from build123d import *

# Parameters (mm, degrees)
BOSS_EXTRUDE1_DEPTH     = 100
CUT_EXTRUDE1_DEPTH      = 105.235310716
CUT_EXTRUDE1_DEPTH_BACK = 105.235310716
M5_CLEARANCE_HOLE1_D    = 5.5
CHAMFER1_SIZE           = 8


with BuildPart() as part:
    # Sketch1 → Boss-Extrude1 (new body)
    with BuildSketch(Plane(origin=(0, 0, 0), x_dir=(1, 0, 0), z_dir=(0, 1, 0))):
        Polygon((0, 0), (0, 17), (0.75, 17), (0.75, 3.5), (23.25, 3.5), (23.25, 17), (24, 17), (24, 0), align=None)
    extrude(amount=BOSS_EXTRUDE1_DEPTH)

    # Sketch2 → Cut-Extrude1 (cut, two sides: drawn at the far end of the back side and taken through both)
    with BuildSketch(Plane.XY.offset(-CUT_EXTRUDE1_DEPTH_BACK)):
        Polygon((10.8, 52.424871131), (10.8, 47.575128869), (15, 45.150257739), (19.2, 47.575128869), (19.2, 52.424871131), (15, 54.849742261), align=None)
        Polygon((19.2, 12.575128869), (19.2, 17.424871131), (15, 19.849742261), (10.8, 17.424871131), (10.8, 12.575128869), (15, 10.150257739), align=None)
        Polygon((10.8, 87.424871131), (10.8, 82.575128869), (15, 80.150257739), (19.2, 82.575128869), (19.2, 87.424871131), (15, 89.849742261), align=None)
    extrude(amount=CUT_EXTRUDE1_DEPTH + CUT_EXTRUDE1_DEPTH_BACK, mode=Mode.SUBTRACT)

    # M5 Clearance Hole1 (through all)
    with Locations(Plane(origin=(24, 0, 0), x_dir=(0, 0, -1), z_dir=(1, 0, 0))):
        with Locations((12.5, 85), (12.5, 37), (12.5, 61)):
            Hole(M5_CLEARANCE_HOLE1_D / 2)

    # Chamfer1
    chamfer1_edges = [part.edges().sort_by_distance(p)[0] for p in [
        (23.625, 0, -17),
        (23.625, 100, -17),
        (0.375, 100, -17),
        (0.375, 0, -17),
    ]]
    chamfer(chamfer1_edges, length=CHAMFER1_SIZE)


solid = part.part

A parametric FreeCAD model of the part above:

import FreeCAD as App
import Part
import Sketcher

V = App.Vector
Q = App.Units.Quantity


def edges_at(feature, points):
    """Names of the edges that pass closest to the given points."""
    edges = feature.Shape.Edges
    near = lambda p: min(range(len(edges)), key=lambda i: edges[i].distToShape(Part.Vertex(*p))[0])
    return sorted({f"Edge{near(p) + 1}" for p in points})

doc = App.newDocument("Part")
body = doc.addObject("PartDesign::Body", "Body")

sketch1 = body.newObject("Sketcher::SketchObject", "Sketch")
sketch1.AttachmentSupport = (doc.getObject("XZ_Plane"), [""])
sketch1.MapMode = "FlatFace"
sketch1.addGeometry(Part.LineSegment(V(0, -17, 0), V(0, 0, 0)), False)
sketch1.addGeometry(Part.LineSegment(V(0, 0, 0), V(24, 0, 0)), False)
sketch1.addGeometry(Part.LineSegment(V(24, 0, 0), V(24, -17, 0)), False)
sketch1.addGeometry(Part.LineSegment(V(24, -17, 0), V(23.2, -17, 0)), False)
sketch1.addGeometry(Part.LineSegment(V(23.2, -17, 0), V(23.2, -3.5, 0)), False)
sketch1.addGeometry(Part.LineSegment(V(23.2, -3.5, 0), V(0.8, -3.5, 0)), False)
sketch1.addGeometry(Part.LineSegment(V(0.8, -3.5, 0), V(0.8, -17, 0)), False)
sketch1.addGeometry(Part.LineSegment(V(0.8, -17, 0), V(0, -17, 0)), False)
sketch1.addConstraint(Sketcher.Constraint("Coincident", 0, 2, 1, 1))
sketch1.addConstraint(Sketcher.Constraint("Coincident", 1, 2, 2, 1))
sketch1.addConstraint(Sketcher.Constraint("Coincident", 2, 2, 3, 1))
sketch1.addConstraint(Sketcher.Constraint("Coincident", 3, 2, 4, 1))
sketch1.addConstraint(Sketcher.Constraint("Coincident", 4, 2, 5, 1))
sketch1.addConstraint(Sketcher.Constraint("Coincident", 5, 2, 6, 1))
sketch1.addConstraint(Sketcher.Constraint("Coincident", 6, 2, 7, 1))
sketch1.addConstraint(Sketcher.Constraint("Coincident", 7, 2, 0, 1))
sketch1.addConstraint(Sketcher.Constraint("Vertical", 0))
sketch1.addConstraint(Sketcher.Constraint("Horizontal", 1))
sketch1.addConstraint(Sketcher.Constraint("Vertical", 2))
sketch1.addConstraint(Sketcher.Constraint("Horizontal", 3))
sketch1.addConstraint(Sketcher.Constraint("Vertical", 4))
sketch1.addConstraint(Sketcher.Constraint("Horizontal", 5))
sketch1.addConstraint(Sketcher.Constraint("Vertical", 6))
sketch1.addConstraint(Sketcher.Constraint("Horizontal", 7))
sketch1.addConstraint(Sketcher.Constraint("Coincident", 0, 2, -1, 1))
sketch1.addConstraint(Sketcher.Constraint("Horizontal", 3, 2, 6, 2))
sketch1.addConstraint(Sketcher.Constraint("Equal", 3, 7))
sketch1.addConstraint(Sketcher.Constraint("DistanceX", 1, 1, 1, 2, 24.0))
sketch1.addConstraint(Sketcher.Constraint("DistanceY", 0, 1, 0, 2, 17.0))
sketch1.addConstraint(Sketcher.Constraint("DistanceX", 5, 2, 5, 1, 22.5))
sketch1.addConstraint(Sketcher.Constraint("DistanceY", 4, 1, 4, 2, 13.5))
pad1 = body.newObject("PartDesign::Pad", "Pad")
pad1.Profile = sketch1
pad1.Length = 100
pad1.Reversed = True

sketch2 = body.newObject("Sketcher::SketchObject", "Sketch001")
sketch2.AttachmentSupport = (doc.getObject("XY_Plane"), [""])
sketch2.MapMode = "FlatFace"
sketch2.addGeometry(Part.LineSegment(V(10.8, 52.4, 0), V(10.8, 47.6, 0)), False)
sketch2.addGeometry(Part.LineSegment(V(10.8, 47.6, 0), V(15, 45.2, 0)), False)
sketch2.addGeometry(Part.LineSegment(V(15, 45.2, 0), V(19.2, 47.6, 0)), False)
sketch2.addGeometry(Part.LineSegment(V(19.2, 47.6, 0), V(19.2, 52.4, 0)), False)
sketch2.addGeometry(Part.LineSegment(V(19.2, 52.4, 0), V(15, 54.8, 0)), False)
sketch2.addGeometry(Part.LineSegment(V(15, 54.8, 0), V(10.8, 52.4, 0)), False)
sketch2.addGeometry(Part.LineSegment(V(19.2, 12.6, 0), V(19.2, 17.4, 0)), False)
sketch2.addGeometry(Part.LineSegment(V(19.2, 17.4, 0), V(15, 19.8, 0)), False)
sketch2.addGeometry(Part.LineSegment(V(15, 19.8, 0), V(10.8, 17.4, 0)), False)
sketch2.addGeometry(Part.LineSegment(V(10.8, 17.4, 0), V(10.8, 12.6, 0)), False)
sketch2.addGeometry(Part.LineSegment(V(10.8, 12.6, 0), V(15, 10.2, 0)), False)
sketch2.addGeometry(Part.LineSegment(V(15, 10.2, 0), V(19.2, 12.6, 0)), False)
sketch2.addGeometry(Part.LineSegment(V(10.8, 87.4, 0), V(10.8, 82.6, 0)), False)
sketch2.addGeometry(Part.LineSegment(V(10.8, 82.6, 0), V(15, 80.2, 0)), False)
sketch2.addGeometry(Part.LineSegment(V(15, 80.2, 0), V(19.2, 82.6, 0)), False)
sketch2.addGeometry(Part.LineSegment(V(19.2, 82.6, 0), V(19.2, 87.4, 0)), False)
sketch2.addGeometry(Part.LineSegment(V(19.2, 87.4, 0), V(15, 89.8, 0)), False)
sketch2.addGeometry(Part.LineSegment(V(15, 89.8, 0), V(10.8, 87.4, 0)), False)
sketch2.addConstraint(Sketcher.Constraint("Coincident", 0, 2, 1, 1))
sketch2.addConstraint(Sketcher.Constraint("Coincident", 1, 2, 2, 1))
sketch2.addConstraint(Sketcher.Constraint("Coincident", 2, 2, 3, 1))
sketch2.addConstraint(Sketcher.Constraint("Coincident", 3, 2, 4, 1))
sketch2.addConstraint(Sketcher.Constraint("Coincident", 4, 2, 5, 1))
sketch2.addConstraint(Sketcher.Constraint("Coincident", 5, 2, 0, 1))
sketch2.addConstraint(Sketcher.Constraint("Coincident", 6, 2, 7, 1))
sketch2.addConstraint(Sketcher.Constraint("Coincident", 7, 2, 8, 1))
sketch2.addConstraint(Sketcher.Constraint("Coincident", 8, 2, 9, 1))
sketch2.addConstraint(Sketcher.Constraint("Coincident", 9, 2, 10, 1))
sketch2.addConstraint(Sketcher.Constraint("Coincident", 10, 2, 11, 1))
sketch2.addConstraint(Sketcher.Constraint("Coincident", 11, 2, 6, 1))
sketch2.addConstraint(Sketcher.Constraint("Coincident", 12, 2, 13, 1))
sketch2.addConstraint(Sketcher.Constraint("Coincident", 13, 2, 14, 1))
sketch2.addConstraint(Sketcher.Constraint("Coincident", 14, 2, 15, 1))
sketch2.addConstraint(Sketcher.Constraint("Coincident", 15, 2, 16, 1))
sketch2.addConstraint(Sketcher.Constraint("Coincident", 16, 2, 17, 1))
sketch2.addConstraint(Sketcher.Constraint("Coincident", 17, 2, 12, 1))
sketch2.addConstraint(Sketcher.Constraint("Vertical", 0))
sketch2.addConstraint(Sketcher.Constraint("Vertical", 3))
sketch2.addConstraint(Sketcher.Constraint("Vertical", 6))
sketch2.addConstraint(Sketcher.Constraint("Vertical", 9))
sketch2.addConstraint(Sketcher.Constraint("Vertical", 12))
sketch2.addConstraint(Sketcher.Constraint("Vertical", 15))
sketch2.addConstraint(Sketcher.Constraint("Parallel", 1, 4))
sketch2.addConstraint(Sketcher.Constraint("Parallel", 2, 5))
sketch2.addConstraint(Sketcher.Constraint("Parallel", 4, 7))
sketch2.addConstraint(Sketcher.Constraint("Parallel", 5, 8))
sketch2.addConstraint(Sketcher.Constraint("Parallel", 7, 10))
sketch2.addConstraint(Sketcher.Constraint("Parallel", 8, 11))
sketch2.addConstraint(Sketcher.Constraint("Parallel", 10, 13))
sketch2.addConstraint(Sketcher.Constraint("Parallel", 11, 14))
sketch2.addConstraint(Sketcher.Constraint("Parallel", 13, 16))
sketch2.addConstraint(Sketcher.Constraint("Parallel", 14, 17))
sketch2.addConstraint(Sketcher.Constraint("Horizontal", 0, 2, 2, 2))
sketch2.addConstraint(Sketcher.Constraint("Horizontal", 3, 2, 5, 2))
sketch2.addConstraint(Sketcher.Constraint("Horizontal", 6, 2, 8, 2))
sketch2.addConstraint(Sketcher.Constraint("Horizontal", 9, 2, 11, 2))
sketch2.addConstraint(Sketcher.Constraint("Horizontal", 12, 2, 14, 2))
sketch2.addConstraint(Sketcher.Constraint("Horizontal", 15, 2, 17, 2))
sketch2.addConstraint(Sketcher.Constraint("Vertical", 1, 2, 4, 2))
sketch2.addConstraint(Sketcher.Constraint("Vertical", 3, 2, 6, 2))
sketch2.addConstraint(Sketcher.Constraint("Vertical", 4, 2, 7, 2))
sketch2.addConstraint(Sketcher.Constraint("Vertical", 9, 2, 12, 2))
sketch2.addConstraint(Sketcher.Constraint("Vertical", 10, 2, 13, 2))
sketch2.addConstraint(Sketcher.Constraint("Equal", 3, 6))
sketch2.addConstraint(Sketcher.Constraint("Equal", 9, 12))
sketch2.addConstraint(Sketcher.Constraint("Angle", 1, Q("-30 deg")))
sketch2.addConstraint(Sketcher.Constraint("DistanceX", -1, 1, 1, 2, 15.0))
sketch2.addConstraint(Sketcher.Constraint("DistanceY", 6, 2, 3, 2, 35.0))
sketch2.addConstraint(Sketcher.Constraint("DistanceY", 0, 2, 12, 2, 35.0))
sketch2.addConstraint(Sketcher.Constraint("DistanceX", -1, 1, 0, 2, 10.8))
sketch2.addConstraint(Sketcher.Constraint("DistanceY", 0, 2, 0, 1, 4.849742))
sketch2.addConstraint(Sketcher.Constraint("DistanceY", -1, 1, 0, 2, 47.575129))
pocket1 = body.newObject("PartDesign::Pocket", "Pocket")
pocket1.Profile = sketch2
pocket1.Type = "ThroughAll"
pocket1.Midplane = True

sketch3 = body.newObject("Sketcher::SketchObject", "Sketch002")
sketch3.AttachmentSupport = (doc.getObject("YZ_Plane"), [""])
sketch3.MapMode = "FlatFace"
sketch3.AttachmentOffset = App.Placement(V(0, 0, 24), App.Rotation())
sketch3.addGeometry(Part.Circle(V(85, -12.5, 0), V(0, 0, 1), 2.8), False)
sketch3.addGeometry(Part.Circle(V(37, -12.5, 0), V(0, 0, 1), 2.8), False)
sketch3.addGeometry(Part.Circle(V(61, -12.5, 0), V(0, 0, 1), 2.8), False)
sketch3.addConstraint(Sketcher.Constraint("Equal", 0, 1))
sketch3.addConstraint(Sketcher.Constraint("Equal", 1, 2))
sketch3.addConstraint(Sketcher.Constraint("Horizontal", 0, 3, 1, 3))
sketch3.addConstraint(Sketcher.Constraint("Horizontal", 1, 3, 2, 3))
sketch3.addConstraint(Sketcher.Constraint("Diameter", 0, 5.5))
sketch3.addConstraint(Sketcher.Constraint("DistanceX", -1, 1, 0, 3, 85.0))
sketch3.addConstraint(Sketcher.Constraint("DistanceX", -1, 1, 1, 3, 37.0))
sketch3.addConstraint(Sketcher.Constraint("DistanceX", -1, 1, 2, 3, 61.0))
sketch3.addConstraint(Sketcher.Constraint("DistanceY", 0, 3, -1, 1, 12.5))
doc.recompute()
hole = body.newObject("PartDesign::Hole", "Hole")
hole.Profile = sketch3
hole.ThreadType = "None"
hole.Diameter = 5.5
hole.DepthType = "ThroughAll"
doc.recompute()

chamfer = body.newObject("PartDesign::Chamfer", "Chamfer")
chamfer.Base = (hole, edges_at(hole, [
    (23.625, 0, -17),
    (23.625, 100, -17),
    (0.375, 100, -17),
    (0.375, 0, -17),
]))
chamfer.Size = 8

doc.recompute()
